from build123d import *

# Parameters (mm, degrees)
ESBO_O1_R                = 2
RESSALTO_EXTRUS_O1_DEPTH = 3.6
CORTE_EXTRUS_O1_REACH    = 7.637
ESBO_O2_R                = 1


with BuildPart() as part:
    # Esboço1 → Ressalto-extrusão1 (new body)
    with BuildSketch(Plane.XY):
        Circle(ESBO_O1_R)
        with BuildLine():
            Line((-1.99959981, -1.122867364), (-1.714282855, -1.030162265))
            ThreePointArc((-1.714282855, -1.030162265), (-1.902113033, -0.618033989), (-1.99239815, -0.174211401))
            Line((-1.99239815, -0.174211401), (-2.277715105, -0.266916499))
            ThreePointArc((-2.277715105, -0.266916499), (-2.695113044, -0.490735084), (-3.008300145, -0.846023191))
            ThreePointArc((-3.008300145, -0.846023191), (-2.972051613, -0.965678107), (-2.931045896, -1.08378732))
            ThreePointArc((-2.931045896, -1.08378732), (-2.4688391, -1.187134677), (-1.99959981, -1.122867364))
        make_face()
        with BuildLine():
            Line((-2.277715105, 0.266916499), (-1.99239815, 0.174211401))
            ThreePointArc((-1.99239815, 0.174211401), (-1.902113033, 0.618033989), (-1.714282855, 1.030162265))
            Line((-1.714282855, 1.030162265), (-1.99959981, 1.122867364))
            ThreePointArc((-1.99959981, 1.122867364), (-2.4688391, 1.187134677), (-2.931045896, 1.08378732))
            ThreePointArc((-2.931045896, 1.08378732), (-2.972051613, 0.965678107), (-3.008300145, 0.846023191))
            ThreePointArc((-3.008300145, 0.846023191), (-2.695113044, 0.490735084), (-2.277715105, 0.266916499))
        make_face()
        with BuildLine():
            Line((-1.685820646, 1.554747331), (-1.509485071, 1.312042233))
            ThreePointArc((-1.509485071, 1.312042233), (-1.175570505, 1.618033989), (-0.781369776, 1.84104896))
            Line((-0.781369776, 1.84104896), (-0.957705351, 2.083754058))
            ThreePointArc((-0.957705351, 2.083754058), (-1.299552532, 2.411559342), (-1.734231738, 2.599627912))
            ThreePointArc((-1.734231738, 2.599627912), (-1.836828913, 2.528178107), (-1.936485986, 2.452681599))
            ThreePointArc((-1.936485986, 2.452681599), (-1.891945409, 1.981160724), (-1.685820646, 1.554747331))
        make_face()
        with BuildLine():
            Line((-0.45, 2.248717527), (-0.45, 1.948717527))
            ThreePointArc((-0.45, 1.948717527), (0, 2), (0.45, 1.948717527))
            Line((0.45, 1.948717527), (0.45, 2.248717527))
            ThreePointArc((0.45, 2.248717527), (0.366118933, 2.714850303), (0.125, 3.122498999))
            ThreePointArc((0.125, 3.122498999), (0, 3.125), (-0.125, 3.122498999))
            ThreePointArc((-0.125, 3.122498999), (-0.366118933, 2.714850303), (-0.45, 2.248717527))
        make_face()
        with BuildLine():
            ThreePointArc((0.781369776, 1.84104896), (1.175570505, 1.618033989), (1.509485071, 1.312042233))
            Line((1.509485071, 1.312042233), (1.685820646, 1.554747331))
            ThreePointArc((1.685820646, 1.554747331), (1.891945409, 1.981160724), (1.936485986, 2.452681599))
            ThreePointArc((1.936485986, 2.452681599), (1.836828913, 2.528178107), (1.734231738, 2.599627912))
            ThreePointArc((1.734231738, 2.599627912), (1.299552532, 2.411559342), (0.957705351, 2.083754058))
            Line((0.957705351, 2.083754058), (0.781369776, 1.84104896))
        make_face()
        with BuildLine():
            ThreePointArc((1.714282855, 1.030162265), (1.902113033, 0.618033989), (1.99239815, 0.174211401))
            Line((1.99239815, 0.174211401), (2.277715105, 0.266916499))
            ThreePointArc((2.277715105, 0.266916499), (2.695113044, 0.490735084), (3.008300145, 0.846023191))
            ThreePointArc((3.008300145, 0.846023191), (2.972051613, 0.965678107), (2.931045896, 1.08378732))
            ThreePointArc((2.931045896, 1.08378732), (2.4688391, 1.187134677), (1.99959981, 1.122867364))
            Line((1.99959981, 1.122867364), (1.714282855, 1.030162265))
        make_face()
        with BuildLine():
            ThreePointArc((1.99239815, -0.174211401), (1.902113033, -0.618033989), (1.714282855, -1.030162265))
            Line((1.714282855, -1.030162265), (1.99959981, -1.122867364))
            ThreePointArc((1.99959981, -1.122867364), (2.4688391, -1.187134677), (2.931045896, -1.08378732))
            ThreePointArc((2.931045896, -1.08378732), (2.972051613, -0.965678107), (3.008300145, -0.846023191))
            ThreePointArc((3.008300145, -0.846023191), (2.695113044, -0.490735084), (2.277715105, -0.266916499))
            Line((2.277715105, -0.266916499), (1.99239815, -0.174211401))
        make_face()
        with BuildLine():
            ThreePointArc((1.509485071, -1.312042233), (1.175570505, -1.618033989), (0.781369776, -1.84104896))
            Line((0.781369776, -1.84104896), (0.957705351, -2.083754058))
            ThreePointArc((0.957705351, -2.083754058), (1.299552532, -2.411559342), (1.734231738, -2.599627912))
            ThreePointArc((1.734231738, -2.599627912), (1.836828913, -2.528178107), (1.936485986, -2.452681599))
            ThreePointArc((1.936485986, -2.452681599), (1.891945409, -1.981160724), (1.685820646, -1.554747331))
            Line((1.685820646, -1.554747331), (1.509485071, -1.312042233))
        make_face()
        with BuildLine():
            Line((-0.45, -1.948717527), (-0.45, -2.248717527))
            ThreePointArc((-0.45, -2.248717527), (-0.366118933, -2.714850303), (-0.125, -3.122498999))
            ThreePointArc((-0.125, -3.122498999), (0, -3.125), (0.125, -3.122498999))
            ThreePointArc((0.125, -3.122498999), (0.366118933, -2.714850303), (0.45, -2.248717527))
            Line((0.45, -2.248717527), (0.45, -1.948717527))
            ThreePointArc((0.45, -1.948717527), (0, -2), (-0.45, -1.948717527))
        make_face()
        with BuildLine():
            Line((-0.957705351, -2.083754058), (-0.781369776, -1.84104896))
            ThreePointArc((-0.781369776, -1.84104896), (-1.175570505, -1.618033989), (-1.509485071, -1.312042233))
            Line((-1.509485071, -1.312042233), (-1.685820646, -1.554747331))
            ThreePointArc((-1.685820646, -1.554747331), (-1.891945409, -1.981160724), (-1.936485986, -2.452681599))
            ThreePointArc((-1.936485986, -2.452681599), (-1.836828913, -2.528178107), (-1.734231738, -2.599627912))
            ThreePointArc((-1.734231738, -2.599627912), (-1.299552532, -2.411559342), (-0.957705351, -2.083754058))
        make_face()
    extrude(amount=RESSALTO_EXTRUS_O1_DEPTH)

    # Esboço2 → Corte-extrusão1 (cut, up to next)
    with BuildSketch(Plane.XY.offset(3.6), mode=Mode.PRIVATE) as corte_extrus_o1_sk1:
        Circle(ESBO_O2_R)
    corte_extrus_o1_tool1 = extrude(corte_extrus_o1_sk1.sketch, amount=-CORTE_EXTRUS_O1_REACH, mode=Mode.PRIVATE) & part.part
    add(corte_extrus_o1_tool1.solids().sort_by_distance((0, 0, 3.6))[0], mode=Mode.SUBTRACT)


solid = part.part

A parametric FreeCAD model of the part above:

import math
import FreeCAD as App
import Part
import Sketcher

V = App.Vector
Q = App.Units.Quantity

doc = App.newDocument("Part")
body = doc.addObject("PartDesign::Body", "Body")

sketch1 = doc.addObject("Sketcher::SketchObject", "Sketch")
body.addObject(sketch1)
sketch1.AttachmentSupport = (doc.XY_Plane, [""])
sketch1.MapMode = "FlatFace"
sketch1.addGeometry(Part.LineSegment(V(-1.99, -0.17, 0), V(-2.28, -0.27, 0)), False)
sketch1.addGeometry(Part.ArcOfCircle(Part.Circle(V(-1.86, -1.54, 0), V(0, 0, 1), 1.34), math.radians(108), math.radians(149)), False)
sketch1.addGeometry(Part.ArcOfCircle(Part.Circle(V(0, 0, 0), V(0, 0, 1), 3.13), math.radians(-164.29), math.radians(-159.71)), False)
sketch1.addGeometry(Part.ArcOfCircle(Part.Circle(V(-2.41, 0.15, 0), V(0, 0, 1), 1.34), math.radians(-113), math.radians(-72)), False)
sketch1.addGeometry(Part.LineSegment(V(-2, -1.12, 0), V(-1.71, -1.03, 0)), False)
sketch1.addGeometry(Part.ArcOfCircle(Part.Circle(V(0, 0, 0), V(0, 0, 1), 2), math.radians(-149), math.radians(-139)), False)
sketch1.addGeometry(Part.LineSegment(V(-1.51, -1.31, 0), V(-1.69, -1.55, 0)), False)
sketch1.addGeometry(Part.ArcOfCircle(Part.Circle(V(-0.6, -2.34, 0), V(0, 0, 1), 1.34), math.radians(144), math.radians(185)), False)
sketch1.addGeometry(Part.ArcOfCircle(Part.Circle(V(0, 0, 0), V(0, 0, 1), 3.13), math.radians(-128.29), math.radians(-123.71)), False)
sketch1.addGeometry(Part.ArcOfCircle(Part.Circle(V(-2.04, -1.3, 0), V(0, 0, 1), 1.34), math.radians(-77), math.radians(-36)), False)
sketch1.addGeometry(Part.LineSegment(V(-0.96, -2.08, 0), V(-0.78, -1.84, 0)), False)
sketch1.addGeometry(Part.ArcOfCircle(Part.Circle(V(0, 0, 0), V(0, 0, 1), 2), math.radians(-113), math.radians(-103)), False)
sketch1.addGeometry(Part.LineSegment(V(-0.45, -1.95, 0), V(-0.45, -2.25, 0)), False)
sketch1.addGeometry(Part.ArcOfCircle(Part.Circle(V(0.89, -2.25, 0), V(0, 0, 1), 1.34), math.radians(180), math.radians(221)), False)
sketch1.addGeometry(Part.ArcOfCircle(Part.Circle(V(0, 0, 0), V(0, 0, 1), 3.12), math.radians(-92.29), math.radians(-87.71)), False)
sketch1.addGeometry(Part.ArcOfCircle(Part.Circle(V(-0.89, -2.25, 0), V(0, 0, 1), 1.34), math.radians(-41), math.radians(0)), False)
sketch1.addGeometry(Part.LineSegment(V(0.45, -2.25, 0), V(0.45, -1.95, 0)), False)
sketch1.addGeometry(Part.ArcOfCircle(Part.Circle(V(0, 0, 0), V(0, 0, 1), 2), math.radians(-77), math.radians(-67)), False)
sketch1.addGeometry(Part.LineSegment(V(0.78, -1.84, 0), V(0.96, -2.08, 0)), False)
sketch1.addGeometry(Part.ArcOfCircle(Part.Circle(V(2.04, -1.3, 0), V(0, 0, 1), 1.34), math.radians(-144), math.radians(-103)), False)
sketch1.addGeometry(Part.ArcOfCircle(Part.Circle(V(0, 0, 0), V(0, 0, 1), 3.13), math.radians(-56.29), math.radians(-51.71)), False)
sketch1.addGeometry(Part.ArcOfCircle(Part.Circle(V(0.6, -2.34, 0), V(0, 0, 1), 1.34), math.radians(-5), math.radians(36)), False)
sketch1.addGeometry(Part.LineSegment(V(1.69, -1.55, 0), V(1.51, -1.31, 0)), False)
sketch1.addGeometry(Part.ArcOfCircle(Part.Circle(V(0, 0, 0), V(0, 0, 1), 2), math.radians(-41), math.radians(-31)), False)
sketch1.addGeometry(Part.LineSegment(V(1.71, -1.03, 0), V(2, -1.12, 0)), False)
sketch1.addGeometry(Part.ArcOfCircle(Part.Circle(V(2.41, 0.15, 0), V(0, 0, 1), 1.34), math.radians(-108), math.radians(-67)), False)
sketch1.addGeometry(Part.ArcOfCircle(Part.Circle(V(0, 0, 0), V(0, 0, 1), 3.13), math.radians(-20.29), math.radians(-15.71)), False)
sketch1.addGeometry(Part.ArcOfCircle(Part.Circle(V(1.86, -1.54, 0), V(0, 0, 1), 1.34), math.radians(31), math.radians(72)), False)
sketch1.addGeometry(Part.LineSegment(V(2.28, -0.27, 0), V(1.99, -0.17, 0)), False)
sketch1.addGeometry(Part.ArcOfCircle(Part.Circle(V(0, 0, 0), V(0, 0, 1), 2), math.radians(-5), math.radians(5)), False)
sketch1.addGeometry(Part.LineSegment(V(1.99, 0.17, 0), V(2.28, 0.27, 0)), False)
sketch1.addGeometry(Part.ArcOfCircle(Part.Circle(V(1.86, 1.54, 0), V(0, 0, 1), 1.34), math.radians(-72), math.radians(-31)), False)
sketch1.addGeometry(Part.ArcOfCircle(Part.Circle(V(0, 0, 0), V(0, 0, 1), 3.13), math.radians(15.71), math.radians(20.29)), False)
sketch1.addGeometry(Part.ArcOfCircle(Part.Circle(V(2.41, -0.15, 0), V(0, 0, 1), 1.34), math.radians(67), math.radians(108)), False)
sketch1.addGeometry(Part.LineSegment(V(2, 1.12, 0), V(1.71, 1.03, 0)), False)
sketch1.addGeometry(Part.ArcOfCircle(Part.Circle(V(0, 0, 0), V(0, 0, 1), 2), math.radians(31), math.radians(41)), False)
sketch1.addGeometry(Part.LineSegment(V(1.51, 1.31, 0), V(1.69, 1.55, 0)), False)
sketch1.addGeometry(Part.ArcOfCircle(Part.Circle(V(0.6, 2.34, 0), V(0, 0, 1), 1.34), math.radians(-36), math.radians(5)), False)
sketch1.addGeometry(Part.ArcOfCircle(Part.Circle(V(0, 0, 0), V(0, 0, 1), 3.13), math.radians(51.71), math.radians(56.29)), False)
sketch1.addGeometry(Part.ArcOfCircle(Part.Circle(V(2.04, 1.3, 0), V(0, 0, 1), 1.34), math.radians(103), math.radians(144)), False)
sketch1.addGeometry(Part.LineSegment(V(0.96, 2.08, 0), V(0.78, 1.84, 0)), False)
sketch1.addGeometry(Part.ArcOfCircle(Part.Circle(V(0, 0, 0), V(0, 0, 1), 2), math.radians(67), math.radians(77)), False)
sketch1.addGeometry(Part.LineSegment(V(0.45, 1.95, 0), V(0.45, 2.25, 0)), False)
sketch1.addGeometry(Part.ArcOfCircle(Part.Circle(V(-0.89, 2.25, 0), V(0, 0, 1), 1.34), math.radians(0), math.radians(41)), False)
sketch1.addGeometry(Part.ArcOfCircle(Part.Circle(V(0, 0, 0), V(0, 0, 1), 3.12), math.radians(87.71), math.radians(92.29)), False)
sketch1.addGeometry(Part.ArcOfCircle(Part.Circle(V(0.89, 2.25, 0), V(0, 0, 1), 1.34), math.radians(139), math.radians(180)), False)
sketch1.addGeometry(Part.LineSegment(V(-0.45, 2.25, 0), V(-0.45, 1.95, 0)), False)
sketch1.addGeometry(Part.ArcOfCircle(Part.Circle(V(0, 0, 0), V(0, 0, 1), 2), math.radians(103), math.radians(113)), False)
sketch1.addGeometry(Part.LineSegment(V(-0.78, 1.84, 0), V(-0.96, 2.08, 0)), False)
sketch1.addGeometry(Part.ArcOfCircle(Part.Circle(V(-2.04, 1.3, 0), V(0, 0, 1), 1.34), math.radians(36), math.radians(77)), False)
sketch1.addGeometry(Part.ArcOfCircle(Part.Circle(V(0, 0, 0), V(0, 0, 1), 3.13), math.radians(123.71), math.radians(128.29)), False)
sketch1.addGeometry(Part.ArcOfCircle(Part.Circle(V(-0.6, 2.34, 0), V(0, 0, 1), 1.34), math.radians(175), math.radians(216)), False)
sketch1.addGeometry(Part.LineSegment(V(-1.69, 1.55, 0), V(-1.51, 1.31, 0)), False)
sketch1.addGeometry(Part.ArcOfCircle(Part.Circle(V(0, 0, 0), V(0, 0, 1), 2), math.radians(139), math.radians(149)), False)
sketch1.addGeometry(Part.LineSegment(V(-1.71, 1.03, 0), V(-2, 1.12, 0)), False)
sketch1.addGeometry(Part.ArcOfCircle(Part.Circle(V(-2.41, -0.15, 0), V(0, 0, 1), 1.34), math.radians(72), math.radians(113)), False)
sketch1.addGeometry(Part.ArcOfCircle(Part.Circle(V(0, 0, 0), V(0, 0, 1), 3.13), math.radians(159.71), math.radians(164.29)), False)
sketch1.addGeometry(Part.ArcOfCircle(Part.Circle(V(-1.86, 1.54, 0), V(0, 0, 1), 1.34), math.radians(-149), math.radians(-108)), False)
sketch1.addGeometry(Part.LineSegment(V(-2.28, 0.27, 0), V(-1.99, 0.17, 0)), False)
sketch1.addGeometry(Part.ArcOfCircle(Part.Circle(V(0, 0, 0), V(0, 0, 1), 2), math.radians(175), math.radians(185)), False)
sketch1.addConstraint(Sketcher.Constraint("Tangent", 0, 2, 1, 1))
sketch1.addConstraint(Sketcher.Constraint("Coincident", 1, 2, 2, 1))
sketch1.addConstraint(Sketcher.Constraint("Coincident", 2, 2, 3, 1))
sketch1.addConstraint(Sketcher.Constraint("Tangent", 3, 2, 4, 1))
sketch1.addConstraint(Sketcher.Constraint("Coincident", 4, 2, 5, 1))
sketch1.addConstraint(Sketcher.Constraint("Coincident", 5, 2, 6, 1))
sketch1.addConstraint(Sketcher.Constraint("Tangent", 6, 2, 7, 1))
sketch1.addConstraint(Sketcher.Constraint("Coincident", 7, 2, 8, 1))
sketch1.addConstraint(Sketcher.Constraint("Coincident", 8, 2, 9, 1))
sketch1.addConstraint(Sketcher.Constraint("Tangent", 9, 2, 10, 1))
sketch1.addConstraint(Sketcher.Constraint("Coincident", 10, 2, 11, 1))
sketch1.addConstraint(Sketcher.Constraint("Coincident", 11, 2, 12, 1))
sketch1.addConstraint(Sketcher.Constraint("Tangent", 12, 2, 13, 1))
sketch1.addConstraint(Sketcher.Constraint("Coincident", 13, 2, 14, 1))
sketch1.addConstraint(Sketcher.Constraint("Coincident", 14, 2, 15, 1))
sketch1.addConstraint(Sketcher.Constraint("Tangent", 15, 2, 16, 1))
sketch1.addConstraint(Sketcher.Constraint("Coincident", 16, 2, 17, 1))
sketch1.addConstraint(Sketcher.Constraint("Coincident", 17, 2, 18, 1))
sketch1.addConstraint(Sketcher.Constraint("Tangent", 18, 2, 19, 1))
sketch1.addConstraint(Sketcher.Constraint("Coincident", 19, 2, 20, 1))
sketch1.addConstraint(Sketcher.Constraint("Coincident", 20, 2, 21, 1))
sketch1.addConstraint(Sketcher.Constraint("Tangent", 21, 2, 22, 1))
sketch1.addConstraint(Sketcher.Constraint("Coincident", 22, 2, 23, 1))
sketch1.addConstraint(Sketcher.Constraint("Coincident", 23, 2, 24, 1))
sketch1.addConstraint(Sketcher.Constraint("Tangent", 24, 2, 25, 1))
sketch1.addConstraint(Sketcher.Constraint("Coincident", 25, 2, 26, 1))
sketch1.addConstraint(Sketcher.Constraint("Coincident", 26, 2, 27, 1))
sketch1.addConstraint(Sketcher.Constraint("Tangent", 27, 2, 28, 1))
sketch1.addConstraint(Sketcher.Constraint("Coincident", 28, 2, 29, 1))
sketch1.addConstraint(Sketcher.Constraint("Coincident", 29, 2, 30, 1))
sketch1.addConstraint(Sketcher.Constraint("Tangent", 30, 2, 31, 1))
sketch1.addConstraint(Sketcher.Constraint("Coincident", 31, 2, 32, 1))
sketch1.addConstraint(Sketcher.Constraint("Coincident", 32, 2, 33, 1))
sketch1.addConstraint(Sketcher.Constraint("Tangent", 33, 2, 34, 1))
sketch1.addConstraint(Sketcher.Constraint("Coincident", 34, 2, 35, 1))
sketch1.addConstraint(Sketcher.Constraint("Coincident", 35, 2, 36, 1))
sketch1.addConstraint(Sketcher.Constraint("Tangent", 36, 2, 37, 1))
sketch1.addConstraint(Sketcher.Constraint("Coincident", 37, 2, 38, 1))
sketch1.addConstraint(Sketcher.Constraint("Coincident", 38, 2, 39, 1))
sketch1.addConstraint(Sketcher.Constraint("Tangent", 39, 2, 40, 1))
sketch1.addConstraint(Sketcher.Constraint("Coincident", 40, 2, 41, 1))
sketch1.addConstraint(Sketcher.Constraint("Coincident", 41, 2, 42, 1))
sketch1.addConstraint(Sketcher.Constraint("Tangent", 42, 2, 43, 1))
sketch1.addConstraint(Sketcher.Constraint("Coincident", 43, 2, 44, 1))
sketch1.addConstraint(Sketcher.Constraint("Coincident", 44, 2, 45, 1))
sketch1.addConstraint(Sketcher.Constraint("Tangent", 45, 2, 46, 1))
sketch1.addConstraint(Sketcher.Constraint("Coincident", 46, 2, 47, 1))
sketch1.addConstraint(Sketcher.Constraint("Coincident", 47, 2, 48, 1))
sketch1.addConstraint(Sketcher.Constraint("Tangent", 48, 2, 49, 1))
sketch1.addConstraint(Sketcher.Constraint("Coincident", 49, 2, 50, 1))
sketch1.addConstraint(Sketcher.Constraint("Coincident", 50, 2, 51, 1))
sketch1.addConstraint(Sketcher.Constraint("Tangent", 51, 2, 52, 1))
sketch1.addConstraint(Sketcher.Constraint("Coincident", 52, 2, 53, 1))
sketch1.addConstraint(Sketcher.Constraint("Coincident", 53, 2, 54, 1))
sketch1.addConstraint(Sketcher.Constraint("Tangent", 54, 2, 55, 1))
sketch1.addConstraint(Sketcher.Constraint("Coincident", 55, 2, 56, 1))
sketch1.addConstraint(Sketcher.Constraint("Coincident", 56, 2, 57, 1))
sketch1.addConstraint(Sketcher.Constraint("Tangent", 57, 2, 58, 1))
sketch1.addConstraint(Sketcher.Constraint("Coincident", 58, 2, 59, 1))
sketch1.addConstraint(Sketcher.Constraint("Coincident", 59, 2, 0, 1))
sketch1.addConstraint(Sketcher.Constraint("Vertical", 12))
sketch1.addConstraint(Sketcher.Constraint("Vertical", 16))
sketch1.addConstraint(Sketcher.Constraint("Vertical", 42))
sketch1.addConstraint(Sketcher.Constraint("Vertical", 46))
sketch1.addConstraint(Sketcher.Constraint("Coincident", 2, 3, -1, 1))
sketch1.addConstraint(Sketcher.Constraint("Coincident", 5, 3, -1, 1))
sketch1.addConstraint(Sketcher.Constraint("Coincident", 8, 3, -1, 1))
sketch1.addConstraint(Sketcher.Constraint("Coincident", 11, 3, -1, 1))
sketch1.addConstraint(Sketcher.Constraint("Coincident", 14, 3, -1, 1))
sketch1.addConstraint(Sketcher.Constraint("Coincident", 17, 3, -1, 1))
sketch1.addConstraint(Sketcher.Constraint("Coincident", 20, 3, -1, 1))
sketch1.addConstraint(Sketcher.Constraint("Coincident", 23, 3, -1, 1))
sketch1.addConstraint(Sketcher.Constraint("Coincident", 26, 3, -1, 1))
sketch1.addConstraint(Sketcher.Constraint("Coincident", 29, 3, -1, 1))
sketch1.addConstraint(Sketcher.Constraint("Coincident", 32, 3, -1, 1))
sketch1.addConstraint(Sketcher.Constraint("Coincident", 35, 3, -1, 1))
sketch1.addConstraint(Sketcher.Constraint("Coincident", 38, 3, -1, 1))
sketch1.addConstraint(Sketcher.Constraint("Coincident", 41, 3, -1, 1))
sketch1.addConstraint(Sketcher.Constraint("Coincident", 44, 3, -1, 1))
sketch1.addConstraint(Sketcher.Constraint("Coincident", 47, 3, -1, 1))
sketch1.addConstraint(Sketcher.Constraint("Coincident", 50, 3, -1, 1))
sketch1.addConstraint(Sketcher.Constraint("Coincident", 53, 3, -1, 1))
sketch1.addConstraint(Sketcher.Constraint("Coincident", 56, 3, -1, 1))
sketch1.addConstraint(Sketcher.Constraint("Coincident", 59, 3, -1, 1))
sketch1.addConstraint(Sketcher.Constraint("Equal", 1, 3))
sketch1.addConstraint(Sketcher.Constraint("Equal", 3, 7))
sketch1.addConstraint(Sketcher.Constraint("Equal", 2, 8))
sketch1.addConstraint(Sketcher.Constraint("Equal", 7, 9))
sketch1.addConstraint(Sketcher.Constraint("Equal", 5, 11))
sketch1.addConstraint(Sketcher.Constraint("Equal", 9, 13))
sketch1.addConstraint(Sketcher.Constraint("Equal", 8, 14))
sketch1.addConstraint(Sketcher.Constraint("Equal", 13, 15))
sketch1.addConstraint(Sketcher.Constraint("Equal", 11, 17))
sketch1.addConstraint(Sketcher.Constraint("Equal", 15, 19))
sketch1.addConstraint(Sketcher.Constraint("Equal", 14, 20))
sketch1.addConstraint(Sketcher.Constraint("Equal", 19, 21))
sketch1.addConstraint(Sketcher.Constraint("Equal", 17, 23))
sketch1.addConstraint(Sketcher.Constraint("Equal", 21, 25))
sketch1.addConstraint(Sketcher.Constraint("Equal", 20, 26))
sketch1.addConstraint(Sketcher.Constraint("Equal", 25, 27))
sketch1.addConstraint(Sketcher.Constraint("Equal", 23, 29))
sketch1.addConstraint(Sketcher.Constraint("Equal", 27, 31))
sketch1.addConstraint(Sketcher.Constraint("Equal", 26, 32))
sketch1.addConstraint(Sketcher.Constraint("Equal", 31, 33))
sketch1.addConstraint(Sketcher.Constraint("Equal", 29, 35))
sketch1.addConstraint(Sketcher.Constraint("Equal", 33, 37))
sketch1.addConstraint(Sketcher.Constraint("Equal", 32, 38))
sketch1.addConstraint(Sketcher.Constraint("Equal", 37, 39))
sketch1.addConstraint(Sketcher.Constraint("Equal", 35, 41))
sketch1.addConstraint(Sketcher.Constraint("Equal", 39, 43))
sketch1.addConstraint(Sketcher.Constraint("Equal", 38, 44))
sketch1.addConstraint(Sketcher.Constraint("Equal", 43, 45))
sketch1.addConstraint(Sketcher.Constraint("Equal", 41, 47))
sketch1.addConstraint(Sketcher.Constraint("Equal", 45, 49))
sketch1.addConstraint(Sketcher.Constraint("Equal", 44, 50))
sketch1.addConstraint(Sketcher.Constraint("Equal", 49, 51))
sketch1.addConstraint(Sketcher.Constraint("Equal", 47, 53))
sketch1.addConstraint(Sketcher.Constraint("Equal", 51, 55))
sketch1.addConstraint(Sketcher.Constraint("Equal", 50, 56))
sketch1.addConstraint(Sketcher.Constraint("Equal", 55, 57))
sketch1.addConstraint(Sketcher.Constraint("Equal", 53, 59))
sketch1.addConstraint(Sketcher.Constraint("Symmetric", 1, 3, 31, 3, -1, 1))
sketch1.addConstraint(Sketcher.Constraint("Symmetric", 3, 3, 33, 3, -1, 1))
sketch1.addConstraint(Sketcher.Constraint("Symmetric", 7, 3, 37, 3, -1, 1))
sketch1.addConstraint(Sketcher.Constraint("Symmetric", 9, 3, 39, 3, -1, 1))
sketch1.addConstraint(Sketcher.Constraint("Symmetric", 13, 3, 43, 3, -1, 1))
sketch1.addConstraint(Sketcher.Constraint("Symmetric", 15, 3, 45, 3, -1, 1))
sketch1.addConstraint(Sketcher.Constraint("Symmetric", 19, 3, 49, 3, -1, 1))
sketch1.addConstraint(Sketcher.Constraint("Symmetric", 21, 3, 51, 3, -1, 1))
sketch1.addConstraint(Sketcher.Constraint("Symmetric", 25, 3, 55, 3, -1, 1))
sketch1.addConstraint(Sketcher.Constraint("Symmetric", 27, 3, 57, 3, -1, 1))
sketch1.addConstraint(Sketcher.Constraint("Symmetric", 13, 3, 15, 3, -2))
sketch1.addConstraint(Sketcher.Constraint("Symmetric", 9, 3, 19, 3, -2))
sketch1.addConstraint(Sketcher.Constraint("Symmetric", 7, 3, 21, 3, -2))
sketch1.addConstraint(Sketcher.Constraint("Symmetric", 3, 3, 25, 3, -2))
sketch1.addConstraint(Sketcher.Constraint("Symmetric", 1, 3, 27, 3, -2))
sketch1.addConstraint(Sketcher.Constraint("Parallel", 0, 4))
sketch1.addConstraint(Sketcher.Constraint("Parallel", 6, 10))
sketch1.addConstraint(Sketcher.Constraint("Parallel", 18, 22))
sketch1.addConstraint(Sketcher.Constraint("Parallel", 24, 28))
sketch1.addConstraint(Sketcher.Constraint("Parallel", 4, 30))
sketch1.addConstraint(Sketcher.Constraint("Parallel", 30, 34))
sketch1.addConstraint(Sketcher.Constraint("Parallel", 10, 36))
sketch1.addConstraint(Sketcher.Constraint("Parallel", 36, 40))
sketch1.addConstraint(Sketcher.Constraint("Parallel", 22, 48))
sketch1.addConstraint(Sketcher.Constraint("Parallel", 48, 52))
sketch1.addConstraint(Sketcher.Constraint("Parallel", 28, 54))
sketch1.addConstraint(Sketcher.Constraint("Parallel", 54, 58))
sketch1.addConstraint(Sketcher.Constraint("Horizontal", 10, 2, 17, 2))
sketch1.addConstraint(Sketcher.Constraint("Horizontal", 4, 2, 23, 2))
sketch1.addConstraint(Sketcher.Constraint("Equal", 0, 4))
sketch1.addConstraint(Sketcher.Constraint("Equal", 4, 6))
sketch1.addConstraint(Sketcher.Constraint("Equal", 6, 10))
sketch1.addConstraint(Sketcher.Constraint("Radius", 5, 2.0))
sketch1.addConstraint(Sketcher.Constraint("Angle", 0, Q("-162 deg")))
sketch1.addConstraint(Sketcher.Constraint("Angle", 6, Q("-126 deg")))
sketch1.addConstraint(Sketcher.Constraint("DistanceY", 12, 2, 12, 1, 0.3))
sketch1.addConstraint(Sketcher.Constraint("Radius", 2, 3.125001))
sketch1.addConstraint(Sketcher.Constraint("Distance", 0, 0.3))
sketch1.addConstraint(Sketcher.Constraint("DistanceX", 11, 2, -1, 1, 0.45))
sketch1.addConstraint(Sketcher.Constraint("DistanceX", 13, 2, -1, 1, 0.125))
sketch1.addConstraint(Sketcher.Constraint("DistanceX", 1, 2, -1, 1, 3.0083))
sketch1.addConstraint(Sketcher.Constraint("DistanceX", 3, 2, -1, 1, 1.9996))
sketch1.addConstraint(Sketcher.Constraint("DistanceX", 7, 3, -1, 1, 0.604079))
sketch1.addConstraint(Sketcher.Constraint("DistanceX", 8, 2, -1, 1, 1.734232))
pad1 = doc.addObject("PartDesign::Pad", "Pad")
body.addObject(pad1)
pad1.Profile = sketch1
pad1.Length = 3.6

sketch2 = doc.addObject("Sketcher::SketchObject", "Sketch001")
body.addObject(sketch2)
sketch2.AttachmentSupport = (doc.XY_Plane, [""])
sketch2.MapMode = "FlatFace"
sketch2.AttachmentOffset = App.Placement(V(0, 0, 3.6), App.Rotation())
sketch2.addGeometry(Part.Circle(V(0, 0, 0), V(0, 0, 1), 1), False)
sketch2.addConstraint(Sketcher.Constraint("Coincident", 0, 3, -1, 1))
sketch2.addConstraint(Sketcher.Constraint("Diameter", 0, 2.0))
pocket1 = doc.addObject("PartDesign::Pocket", "Pocket")
body.addObject(pocket1)
pocket1.Profile = sketch2
pocket1.Type = "UpToFirst"

doc.recompute()
